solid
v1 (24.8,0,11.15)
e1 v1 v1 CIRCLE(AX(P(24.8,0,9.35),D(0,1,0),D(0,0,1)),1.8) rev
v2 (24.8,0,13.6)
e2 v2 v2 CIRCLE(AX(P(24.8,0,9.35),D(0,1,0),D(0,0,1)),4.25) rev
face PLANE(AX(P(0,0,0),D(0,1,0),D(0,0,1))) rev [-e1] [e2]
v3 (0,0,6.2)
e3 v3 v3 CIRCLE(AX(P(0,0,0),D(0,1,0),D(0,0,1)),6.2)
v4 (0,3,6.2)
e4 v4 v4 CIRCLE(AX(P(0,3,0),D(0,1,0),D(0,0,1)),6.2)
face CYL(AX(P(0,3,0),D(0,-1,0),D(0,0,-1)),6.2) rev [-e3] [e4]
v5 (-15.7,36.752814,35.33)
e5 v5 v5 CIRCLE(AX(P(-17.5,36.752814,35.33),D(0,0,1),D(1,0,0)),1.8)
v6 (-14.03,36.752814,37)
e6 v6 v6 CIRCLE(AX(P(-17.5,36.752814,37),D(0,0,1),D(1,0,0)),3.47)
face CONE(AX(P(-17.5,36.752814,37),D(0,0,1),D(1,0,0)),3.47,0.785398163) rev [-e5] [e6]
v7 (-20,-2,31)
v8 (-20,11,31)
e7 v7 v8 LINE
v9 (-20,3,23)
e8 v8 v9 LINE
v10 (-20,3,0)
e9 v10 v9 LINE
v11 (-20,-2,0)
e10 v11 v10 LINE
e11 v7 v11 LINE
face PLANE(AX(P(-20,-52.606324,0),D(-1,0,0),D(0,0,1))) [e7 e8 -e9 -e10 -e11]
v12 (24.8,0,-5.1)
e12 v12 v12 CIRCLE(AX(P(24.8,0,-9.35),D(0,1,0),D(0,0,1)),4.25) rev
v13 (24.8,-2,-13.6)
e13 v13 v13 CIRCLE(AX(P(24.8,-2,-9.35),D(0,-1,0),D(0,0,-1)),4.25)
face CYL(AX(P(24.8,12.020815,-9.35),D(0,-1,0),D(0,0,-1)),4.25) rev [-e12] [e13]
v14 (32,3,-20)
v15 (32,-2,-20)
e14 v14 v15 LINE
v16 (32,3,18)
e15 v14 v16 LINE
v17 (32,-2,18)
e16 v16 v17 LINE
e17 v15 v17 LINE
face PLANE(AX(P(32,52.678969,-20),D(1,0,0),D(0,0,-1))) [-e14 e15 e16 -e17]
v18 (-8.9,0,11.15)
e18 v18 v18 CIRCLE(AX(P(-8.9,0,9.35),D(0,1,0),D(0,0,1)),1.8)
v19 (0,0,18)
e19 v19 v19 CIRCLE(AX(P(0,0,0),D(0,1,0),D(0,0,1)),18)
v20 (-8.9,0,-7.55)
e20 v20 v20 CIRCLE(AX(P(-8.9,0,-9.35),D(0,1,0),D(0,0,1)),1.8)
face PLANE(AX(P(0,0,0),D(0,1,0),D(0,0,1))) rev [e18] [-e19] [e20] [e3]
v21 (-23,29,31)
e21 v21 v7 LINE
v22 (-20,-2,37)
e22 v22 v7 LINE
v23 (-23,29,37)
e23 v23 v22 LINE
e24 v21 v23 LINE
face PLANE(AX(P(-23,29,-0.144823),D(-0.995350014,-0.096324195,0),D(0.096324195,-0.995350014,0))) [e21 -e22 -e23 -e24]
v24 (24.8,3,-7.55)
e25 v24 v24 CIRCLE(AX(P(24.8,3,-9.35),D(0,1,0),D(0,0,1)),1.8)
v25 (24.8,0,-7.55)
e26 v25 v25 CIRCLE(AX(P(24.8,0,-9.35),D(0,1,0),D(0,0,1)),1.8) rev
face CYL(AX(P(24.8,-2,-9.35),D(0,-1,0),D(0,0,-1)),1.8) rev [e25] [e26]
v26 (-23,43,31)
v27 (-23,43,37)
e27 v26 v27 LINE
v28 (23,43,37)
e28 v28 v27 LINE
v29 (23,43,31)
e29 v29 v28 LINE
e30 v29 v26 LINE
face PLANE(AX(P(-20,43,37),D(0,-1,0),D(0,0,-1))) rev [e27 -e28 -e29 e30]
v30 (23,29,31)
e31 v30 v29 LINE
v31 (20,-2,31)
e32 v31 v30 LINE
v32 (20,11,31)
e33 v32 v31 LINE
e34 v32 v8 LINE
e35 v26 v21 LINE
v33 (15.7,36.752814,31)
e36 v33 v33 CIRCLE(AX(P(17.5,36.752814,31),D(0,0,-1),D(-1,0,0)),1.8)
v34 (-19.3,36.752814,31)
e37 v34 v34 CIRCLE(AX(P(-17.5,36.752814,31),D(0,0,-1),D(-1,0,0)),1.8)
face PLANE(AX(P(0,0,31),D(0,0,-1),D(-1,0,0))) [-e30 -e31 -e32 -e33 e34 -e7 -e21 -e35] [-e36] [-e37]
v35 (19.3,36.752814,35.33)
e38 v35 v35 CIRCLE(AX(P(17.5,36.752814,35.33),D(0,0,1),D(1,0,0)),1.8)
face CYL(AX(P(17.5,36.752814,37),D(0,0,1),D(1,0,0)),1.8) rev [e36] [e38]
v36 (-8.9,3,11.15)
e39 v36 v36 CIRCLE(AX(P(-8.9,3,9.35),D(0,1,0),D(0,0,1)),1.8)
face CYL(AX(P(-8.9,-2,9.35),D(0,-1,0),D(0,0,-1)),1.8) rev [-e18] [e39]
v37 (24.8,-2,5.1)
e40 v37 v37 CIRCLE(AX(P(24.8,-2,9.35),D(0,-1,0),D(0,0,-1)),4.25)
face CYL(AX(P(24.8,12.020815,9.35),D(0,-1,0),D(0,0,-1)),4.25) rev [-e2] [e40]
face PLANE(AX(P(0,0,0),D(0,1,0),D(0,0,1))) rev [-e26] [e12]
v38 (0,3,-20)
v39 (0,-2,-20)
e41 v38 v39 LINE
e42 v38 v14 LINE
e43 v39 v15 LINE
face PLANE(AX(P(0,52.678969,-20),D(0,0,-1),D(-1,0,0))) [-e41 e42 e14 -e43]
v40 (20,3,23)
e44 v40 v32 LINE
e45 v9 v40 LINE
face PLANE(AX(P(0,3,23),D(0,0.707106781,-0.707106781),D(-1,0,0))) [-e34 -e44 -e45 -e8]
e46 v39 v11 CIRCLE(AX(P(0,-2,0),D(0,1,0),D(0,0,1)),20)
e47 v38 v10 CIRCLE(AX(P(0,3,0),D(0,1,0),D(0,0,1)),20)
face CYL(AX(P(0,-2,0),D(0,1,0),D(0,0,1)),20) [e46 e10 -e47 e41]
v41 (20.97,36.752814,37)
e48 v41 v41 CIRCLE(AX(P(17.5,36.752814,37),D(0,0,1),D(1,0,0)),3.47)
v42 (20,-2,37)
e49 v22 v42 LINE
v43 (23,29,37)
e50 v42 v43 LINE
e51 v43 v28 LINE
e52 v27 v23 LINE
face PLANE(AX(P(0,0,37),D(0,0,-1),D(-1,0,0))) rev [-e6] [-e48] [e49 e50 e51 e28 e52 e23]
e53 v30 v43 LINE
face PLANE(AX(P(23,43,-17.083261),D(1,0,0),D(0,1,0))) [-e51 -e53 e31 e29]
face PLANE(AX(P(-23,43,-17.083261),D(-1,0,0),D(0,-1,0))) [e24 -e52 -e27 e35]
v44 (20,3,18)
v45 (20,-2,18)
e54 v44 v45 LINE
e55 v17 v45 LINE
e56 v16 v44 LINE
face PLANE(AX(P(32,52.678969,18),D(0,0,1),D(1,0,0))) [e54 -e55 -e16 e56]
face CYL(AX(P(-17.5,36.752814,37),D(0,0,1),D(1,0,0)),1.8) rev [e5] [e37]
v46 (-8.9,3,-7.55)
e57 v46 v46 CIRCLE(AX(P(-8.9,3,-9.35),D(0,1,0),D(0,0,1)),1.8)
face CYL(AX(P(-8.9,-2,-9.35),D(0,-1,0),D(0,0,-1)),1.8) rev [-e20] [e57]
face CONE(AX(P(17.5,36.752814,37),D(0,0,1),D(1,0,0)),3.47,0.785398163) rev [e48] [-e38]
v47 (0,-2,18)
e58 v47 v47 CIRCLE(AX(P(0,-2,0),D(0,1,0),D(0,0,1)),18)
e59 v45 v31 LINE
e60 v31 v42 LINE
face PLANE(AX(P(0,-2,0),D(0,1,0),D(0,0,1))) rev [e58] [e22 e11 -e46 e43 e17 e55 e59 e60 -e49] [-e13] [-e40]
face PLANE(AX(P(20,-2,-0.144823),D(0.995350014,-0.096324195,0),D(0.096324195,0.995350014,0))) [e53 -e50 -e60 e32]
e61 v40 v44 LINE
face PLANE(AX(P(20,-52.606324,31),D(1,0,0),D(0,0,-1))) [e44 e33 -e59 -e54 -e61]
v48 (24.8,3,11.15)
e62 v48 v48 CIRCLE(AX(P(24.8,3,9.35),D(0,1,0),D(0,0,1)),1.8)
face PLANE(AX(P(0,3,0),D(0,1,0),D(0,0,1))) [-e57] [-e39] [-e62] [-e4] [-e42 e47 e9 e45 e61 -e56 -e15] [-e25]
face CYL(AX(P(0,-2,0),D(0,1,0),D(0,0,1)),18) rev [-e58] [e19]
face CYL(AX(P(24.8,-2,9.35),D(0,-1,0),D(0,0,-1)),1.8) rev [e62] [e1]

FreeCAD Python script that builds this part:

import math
import FreeCAD as App
import Part
import Sketcher
from FreeCAD import Vector


def edges_at(feature, points):
    """Names of the edges that pass closest to the given points."""
    edges = feature.Shape.Edges
    near = lambda p: min(range(len(edges)), key=lambda i: edges[i].distToShape(Part.Vertex(*p))[0])
    return sorted({f"Edge{near(p) + 1}" for p in points})

doc = App.newDocument("Part")
body = doc.addObject("PartDesign::Body", "Body")

# Sketch on XZ plane
sketch1 = body.newObject("Sketcher::SketchObject", "Sketch")
sketch1.AttachmentSupport = (doc.getObject("XZ_Plane"), [""])
sketch1.MapMode = "FlatFace"
sketch1.addGeometry([
    Part.Circle(Vector(0, 0, 0), Vector(0, 0, 1), 18),
    Part.Circle(Vector(0, 0, 0), Vector(0, 0, 1), 6),
], False)
sketch1.addConstraint([
    Sketcher.Constraint("Coincident", 0, 3, -1, 1),
    Sketcher.Constraint("Coincident", 1, 3, -1, 1),
    Sketcher.Constraint("Diameter", 0, 36.0),
    Sketcher.Constraint("Diameter", 1, 12.4),
])
pad1 = body.newObject("PartDesign::Pad", "Pad")
pad1.Profile = sketch1
pad1.Length = 3
pad1.Reversed = True

# Sketch on XZ plane
sketch2 = body.newObject("Sketcher::SketchObject", "Sketch001")
sketch2.AttachmentSupport = (doc.getObject("XZ_Plane"), [""])
sketch2.MapMode = "FlatFace"
sketch2.AttachmentOffset = App.Placement(Vector(0, 0, 2), App.Rotation())
sketch2.addGeometry([
    Part.Circle(Vector(0, 0, 0), Vector(0, 0, 1), 20),
    Part.Circle(Vector(0, 0, 0), Vector(0, 0, 1), 18),
], False)
sketch2.addConstraint([
    Sketcher.Constraint("Coincident", 0, 3, -1, 1),
    Sketcher.Constraint("Coincident", 1, 3, -1, 1),
    Sketcher.Constraint("Diameter", 0, 40.0),
    Sketcher.Constraint("Diameter", 1, 36.0),
])
pad2 = body.newObject("PartDesign::Pad", "Pad001")
pad2.Profile = sketch2
pad2.Length = 5
pad2.Reversed = True

# Sketch on XZ plane
sketch3 = body.newObject("Sketcher::SketchObject", "Sketch002")
sketch3.AttachmentSupport = (doc.getObject("XZ_Plane"), [""])
sketch3.MapMode = "FlatFace"
sketch3.AttachmentOffset = App.Placement(Vector(0, 0, 2), App.Rotation())
sketch3.addGeometry([
    Part.LineSegment(Vector(-20, 0, 0), Vector(-20, 31, 0)),
    Part.LineSegment(Vector(-20, 31, 0), Vector(20, 31, 0)),
    Part.LineSegment(Vector(20, 31, 0), Vector(20, 0, 0)),
    Part.ArcOfCircle(Part.Circle(Vector(0, 0, 0), Vector(0, 0, 1), 20), math.radians(0), math.radians(180)),
], False)
sketch3.addConstraint([
    Sketcher.Constraint("Coincident", 0, 2, 1, 1),
    Sketcher.Constraint("Coincident", 1, 2, 2, 1),
    Sketcher.Constraint("Tangent", 2, 2, 3, 1),
    Sketcher.Constraint("Tangent", 3, 2, 0, 1),
    Sketcher.Constraint("Vertical", 0),
    Sketcher.Constraint("Horizontal", 1),
    Sketcher.Constraint("Vertical", 2),
    Sketcher.Constraint("Coincident", 3, 3, -1, 1),
    Sketcher.Constraint("Radius", 3, 20.0),
    Sketcher.Constraint("DistanceY", 0, 1, 0, 2, 31.0),
])
pad3 = body.newObject("PartDesign::Pad", "Pad002")
pad3.Profile = sketch3
pad3.Length = 5
pad3.Reversed = True

# Sketch on XY plane
sketch4 = body.newObject("Sketcher::SketchObject", "Sketch003")
sketch4.AttachmentSupport = (doc.getObject("XY_Plane"), [""])
sketch4.MapMode = "FlatFace"
sketch4.AttachmentOffset = App.Placement(Vector(0, 0, 31), App.Rotation())
sketch4.addGeometry([
    Part.LineSegment(Vector(-20, 43, 0), Vector(-20, -2, 0)),
    Part.LineSegment(Vector(-20, -2, 0), Vector(20, -2, 0)),
    Part.LineSegment(Vector(20, -2, 0), Vector(20, 43, 0)),
    Part.LineSegment(Vector(20, 43, 0), Vector(-20, 43, 0)),
], False)
sketch4.addConstraint([
    Sketcher.Constraint("Coincident", 0, 2, 1, 1),
    Sketcher.Constraint("Coincident", 1, 2, 2, 1),
    Sketcher.Constraint("Coincident", 2, 2, 3, 1),
    Sketcher.Constraint("Coincident", 3, 2, 0, 1),
    Sketcher.Constraint("Vertical", 0),
    Sketcher.Constraint("Horizontal", 1),
    Sketcher.Constraint("Vertical", 2),
    Sketcher.Constraint("Horizontal", 3),
    Sketcher.Constraint("DistanceX", 1, 1, 1, 2, 40.0),
    Sketcher.Constraint("DistanceY", 0, 2, 0, 1, 45.0),
    Sketcher.Constraint("DistanceX", 0, 2, -1, 1, 20.0),
    Sketcher.Constraint("DistanceY", 0, 2, -1, 1, 2.0),
])
pad4 = body.newObject("PartDesign::Pad", "Pad003")
pad4.Profile = sketch4
pad4.Length = 6

# Sketch on XY plane
sketch5 = body.newObject("Sketcher::SketchObject", "Sketch004")
sketch5.AttachmentSupport = (doc.getObject("XY_Plane"), [""])
sketch5.MapMode = "FlatFace"
sketch5.AttachmentOffset = App.Placement(Vector(0, 0, 37), App.Rotation())
sketch5.addGeometry([
    Part.LineSegment(Vector(-23, 43, 0), Vector(-23, 29, 0)),
    Part.LineSegment(Vector(-23, 29, 0), Vector(23, 29, 0)),
    Part.LineSegment(Vector(23, 29, 0), Vector(23, 43, 0)),
    Part.LineSegment(Vector(23, 43, 0), Vector(-23, 43, 0)),
], False)
sketch5.addConstraint([
    Sketcher.Constraint("Coincident", 0, 2, 1, 1),
    Sketcher.Constraint("Coincident", 1, 2, 2, 1),
    Sketcher.Constraint("Coincident", 2, 2, 3, 1),
    Sketcher.Constraint("Coincident", 3, 2, 0, 1),
    Sketcher.Constraint("Vertical", 0),
    Sketcher.Constraint("Horizontal", 1),
    Sketcher.Constraint("Vertical", 2),
    Sketcher.Constraint("Horizontal", 3),
    Sketcher.Constraint("DistanceX", 1, 1, 1, 2, 46.0),
    Sketcher.Constraint("DistanceY", 0, 2, 0, 1, 14.0),
    Sketcher.Constraint("DistanceX", 0, 2, -1, 1, 23.0),
    Sketcher.Constraint("DistanceY", -1, 1, 0, 2, 29.0),
])
pad5 = body.newObject("PartDesign::Pad", "Pad004")
pad5.Profile = sketch5
pad5.Length = 6
pad5.Reversed = True

# Sketch on XY plane
sketch6 = body.newObject("Sketcher::SketchObject", "Sketch005")
sketch6.AttachmentSupport = (doc.getObject("XY_Plane"), [""])
sketch6.MapMode = "FlatFace"
sketch6.AttachmentOffset = App.Placement(Vector(0, 0, 37), App.Rotation())
sketch6.addGeometry([
    Part.LineSegment(Vector(-23, 29, 0), Vector(-20, -2, 0)),  # 0
    Part.LineSegment(Vector(-20, -2, 0), Vector(-20, 29, 0)),  # 1
    Part.LineSegment(Vector(-20, 29, 0), Vector(-23, 29, 0)),  # 2
    Part.LineSegment(Vector(20, -2, 0), Vector(23, 29, 0)),  # 3
    Part.LineSegment(Vector(23, 29, 0), Vector(20, 29, 0)),  # 4
    Part.LineSegment(Vector(20, 29, 0), Vector(20, -2, 0)),  # 5
], False)
sketch6.addConstraint([
    Sketcher.Constraint("Coincident", 0, 2, 1, 1),
    Sketcher.Constraint("Coincident", 1, 2, 2, 1),
    Sketcher.Constraint("Coincident", 2, 2, 0, 1),
    Sketcher.Constraint("Coincident", 3, 2, 4, 1),
    Sketcher.Constraint("Coincident", 4, 2, 5, 1),
    Sketcher.Constraint("Coincident", 5, 2, 3, 1),
    Sketcher.Constraint("Vertical", 1),
    Sketcher.Constraint("Horizontal", 2),
    Sketcher.Constraint("Horizontal", 4),
    Sketcher.Constraint("Vertical", 5),
    Sketcher.Constraint("Symmetric", 2, 2, 3, 2, -2),
    Sketcher.Constraint("Symmetric", 0, 2, 5, 2, -2),
    Sketcher.Constraint("DistanceX", 2, 2, 2, 1, 3.0),
    Sketcher.Constraint("DistanceY", 1, 1, 1, 2, 31.0),
    Sketcher.Constraint("DistanceX", 0, 2, -1, 1, 20.0),
    Sketcher.Constraint("DistanceY", 0, 2, -1, 1, 2.0),
])
pad6 = body.newObject("PartDesign::Pad", "Pad005")
pad6.Profile = sketch6
pad6.Length = 6
pad6.Reversed = True
doc.recompute()

chamfer = body.newObject("PartDesign::Chamfer", "Chamfer")
chamfer.Base = (pad6, edges_at(pad6, [(0, 3, 31)]))
chamfer.Size = 8

# Sketch on XY plane
sketch7 = body.newObject("Sketcher::SketchObject", "Sketch006")
sketch7.AttachmentSupport = (doc.getObject("XY_Plane"), [""])
sketch7.MapMode = "FlatFace"
sketch7.AttachmentOffset = App.Placement(Vector(0, 0, 37), App.Rotation())
sketch7.addGeometry([
    Part.Circle(Vector(17.5, 36.8, 0), Vector(0, 0, 1), 1.8),
    Part.Circle(Vector(-17.5, 36.8, 0), Vector(0, 0, 1), 1.8),
], False)
sketch7.addConstraint([
    Sketcher.Constraint("Equal", 0, 1),
    Sketcher.Constraint("Symmetric", 0, 3, 1, 3, -2),
    Sketcher.Constraint("Diameter", 0, 3.6),
    Sketcher.Constraint("DistanceX", 1, 3, 0, 3, 35.0),
    Sketcher.Constraint("DistanceY", -1, 1, 0, 3, 36.752814),
])
doc.recompute()
hole = body.newObject("PartDesign::Hole", "Hole")
hole.Profile = sketch7
hole.ThreadType = "None"
hole.Diameter = 3.6
hole.DepthType = "ThroughAll"
hole.HoleCutType = "Countersink"
hole.HoleCutDiameter = 6.94
hole.HoleCutCountersinkAngle = 90

# Sketch on XZ plane
sketch8 = body.newObject("Sketcher::SketchObject", "Sketch007")
sketch8.AttachmentSupport = (doc.getObject("XZ_Plane"), [""])
sketch8.MapMode = "FlatFace"
sketch8.AttachmentOffset = App.Placement(Vector(0, 0, 2), App.Rotation())
sketch8.addGeometry([
    Part.LineSegment(Vector(0, -20, 0), Vector(32, -20, 0)),  # 0
    Part.LineSegment(Vector(32, -20, 0), Vector(32, 18, 0)),  # 1
    Part.LineSegment(Vector(32, 18, 0), Vector(20, 18, 0)),  # 2
    Part.LineSegment(Vector(20, 18, 0), Vector(20, 0, 0)),  # 3
    Part.ArcOfCircle(Part.Circle(Vector(0, 0, 0), Vector(0, 0, 1), 20), math.radians(-90), math.radians(0)),  # 4
], False)
sketch8.addConstraint([
    Sketcher.Constraint("Coincident", 0, 2, 1, 1),
    Sketcher.Constraint("Coincident", 1, 2, 2, 1),
    Sketcher.Constraint("Coincident", 2, 2, 3, 1),
    Sketcher.Constraint("Tangent", 3, 2, 4, 2),
    Sketcher.Constraint("Tangent", 4, 1, 0, 1),
    Sketcher.Constraint("Horizontal", 0),
    Sketcher.Constraint("Vertical", 1),
    Sketcher.Constraint("Horizontal", 2),
    Sketcher.Constraint("Vertical", 3),
    Sketcher.Constraint("Coincident", 4, 3, -1, 1),
    Sketcher.Constraint("Radius", 4, 20.0),
    Sketcher.Constraint("DistanceX", 0, 1, 0, 2, 32.0),
    Sketcher.Constraint("DistanceY", 1, 1, 1, 2, 38.0),
])
pad7 = body.newObject("PartDesign::Pad", "Pad006")
pad7.Profile = sketch8
pad7.Length = 5
pad7.Reversed = True

# Sketch on XZ plane
sketch9 = body.newObject("Sketcher::SketchObject", "Sketch008")
sketch9.AttachmentSupport = (doc.getObject("XZ_Plane"), [""])
sketch9.MapMode = "FlatFace"
sketch9.AttachmentOffset = App.Placement(Vector(0, 0, 2), App.Rotation())
sketch9.addGeometry([
    Part.Circle(Vector(24.8, -9.3, 0), Vector(0, 0, 1), 1.8),
    Part.Circle(Vector(-8.9, -9.3, 0), Vector(0, 0, 1), 1.8),
    Part.Circle(Vector(-8.9, 9.3, 0), Vector(0, 0, 1), 1.8),
    Part.Circle(Vector(24.8, 9.3, 0), Vector(0, 0, 1), 1.8),
], False)
sketch9.addConstraint([
    Sketcher.Constraint("Equal", 0, 1),
    Sketcher.Constraint("Equal", 1, 2),
    Sketcher.Constraint("Equal", 2, 3),
    Sketcher.Constraint("Symmetric", 1, 3, 2, 3, -1),
    Sketcher.Constraint("Symmetric", 0, 3, 3, 3, -1),
    Sketcher.Constraint("Horizontal", 0, 3, 1, 3),
    Sketcher.Constraint("Diameter", 0, 3.6),
    Sketcher.Constraint("DistanceX", -1, 1, 0, 3, 24.8),
    Sketcher.Constraint("DistanceX", 1, 3, -1, 1, 8.9),
    Sketcher.Constraint("DistanceY", 1, 3, 2, 3, 18.7),
])
doc.recompute()
hole2 = body.newObject("PartDesign::Hole", "Hole001")
hole2.Profile = sketch9
hole2.ThreadType = "None"
hole2.Diameter = 3.6
hole2.DepthType = "ThroughAll"

# Sketch on XZ plane
sketch10 = body.newObject("Sketcher::SketchObject", "Sketch009")
sketch10.AttachmentSupport = (doc.getObject("XZ_Plane"), [""])
sketch10.MapMode = "FlatFace"
sketch10.AttachmentOffset = App.Placement(Vector(0, 0, 2), App.Rotation())
sketch10.addGeometry([
    Part.Circle(Vector(24.8, 9.3, 0), Vector(0, 0, 1), 4.2),
    Part.Circle(Vector(24.8, -9.3, 0), Vector(0, 0, 1), 4.2),
], False)
sketch10.addConstraint([
    Sketcher.Constraint("Equal", 0, 1),
    Sketcher.Constraint("Symmetric", 0, 3, 1, 3, -1),
    Sketcher.Constraint("Diameter", 0, 8.5),
    Sketcher.Constraint("DistanceX", -1, 1, 0, 3, 24.8),
    Sketcher.Constraint("DistanceY", 1, 3, 0, 3, 18.7),
])
pocket1 = body.newObject("PartDesign::Pocket", "Pocket")
pocket1.Profile = sketch10
pocket1.Length = 2

doc.recompute()
